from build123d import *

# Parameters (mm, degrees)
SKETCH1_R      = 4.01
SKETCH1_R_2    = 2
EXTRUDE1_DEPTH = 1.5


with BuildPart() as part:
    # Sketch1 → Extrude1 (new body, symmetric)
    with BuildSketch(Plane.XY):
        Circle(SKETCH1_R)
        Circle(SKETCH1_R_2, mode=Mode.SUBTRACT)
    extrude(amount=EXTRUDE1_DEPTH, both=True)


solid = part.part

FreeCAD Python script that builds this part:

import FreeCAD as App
import Part
import Sketcher
from FreeCAD import Vector

doc = App.newDocument("Part")
body = doc.addObject("PartDesign::Body", "Body")

sketch1 = body.newObject("Sketcher::SketchObject", "Sketch")
sketch1.AttachmentSupport = (doc.getObject("XY_Plane"), [""])
sketch1.MapMode = "FlatFace"
sketch1.addGeometry(Part.Circle(Vector(0, 0, 0), Vector(0, 0, 1), 4), False)
sketch1.addGeometry(Part.Circle(Vector(0, 0, 0), Vector(0, 0, 1), 2), False)
sketch1.addConstraint(Sketcher.Constraint("Coincident", 0, 3, -1, 1))
sketch1.addConstraint(Sketcher.Constraint("Coincident", 1, 3, -1, 1))
sketch1.addConstraint(Sketcher.Constraint("Diameter", 1, 4.0))
sketch1.addConstraint(Sketcher.Constraint("Diameter", 0, 8.02))
pad1 = body.newObject("PartDesign::Pad", "Pad")
pad1.Profile = sketch1
pad1.Length = 3
pad1.Midplane = True

doc.recompute()
